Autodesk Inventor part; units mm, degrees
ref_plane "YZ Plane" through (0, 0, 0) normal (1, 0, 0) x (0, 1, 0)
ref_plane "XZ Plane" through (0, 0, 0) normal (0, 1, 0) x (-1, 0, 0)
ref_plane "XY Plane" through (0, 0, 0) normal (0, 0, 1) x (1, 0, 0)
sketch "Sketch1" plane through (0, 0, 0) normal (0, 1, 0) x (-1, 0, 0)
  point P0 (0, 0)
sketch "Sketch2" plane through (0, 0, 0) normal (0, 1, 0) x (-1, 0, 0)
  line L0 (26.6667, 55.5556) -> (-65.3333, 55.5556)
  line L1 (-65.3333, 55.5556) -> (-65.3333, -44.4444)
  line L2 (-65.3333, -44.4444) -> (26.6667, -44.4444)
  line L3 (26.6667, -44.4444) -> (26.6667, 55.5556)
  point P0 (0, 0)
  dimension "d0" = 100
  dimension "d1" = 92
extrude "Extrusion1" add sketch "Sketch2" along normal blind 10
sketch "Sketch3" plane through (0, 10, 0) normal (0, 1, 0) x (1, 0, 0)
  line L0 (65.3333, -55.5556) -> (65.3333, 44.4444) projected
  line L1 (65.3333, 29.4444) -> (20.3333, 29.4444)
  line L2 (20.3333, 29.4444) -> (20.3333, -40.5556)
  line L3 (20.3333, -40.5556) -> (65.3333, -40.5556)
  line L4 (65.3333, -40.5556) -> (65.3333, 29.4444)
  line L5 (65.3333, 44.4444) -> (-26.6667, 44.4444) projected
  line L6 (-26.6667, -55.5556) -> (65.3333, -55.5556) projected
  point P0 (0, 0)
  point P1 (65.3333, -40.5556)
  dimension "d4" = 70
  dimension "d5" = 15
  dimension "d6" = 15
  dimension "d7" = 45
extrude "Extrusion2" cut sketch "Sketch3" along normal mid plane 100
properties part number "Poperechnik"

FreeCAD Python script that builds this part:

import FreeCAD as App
import Part
import Sketcher

doc = App.newDocument("Part")
body = doc.addObject("PartDesign::Body", "Body")

# Sketch on XZ plane
sketch1 = body.newObject("Sketcher::SketchObject", "Sketch")
sketch1.AttachmentSupport = (doc.getObject("XZ_Plane"), [""])
sketch1.MapMode = "FlatFace"
sketch1.addGeometry([
    Part.LineSegment(App.Vector(-27, -44, 0), App.Vector(-27, 56, 0)),
    Part.LineSegment(App.Vector(-27, 56, 0), App.Vector(65, 56, 0)),
    Part.LineSegment(App.Vector(65, 56, 0), App.Vector(65, -44, 0)),
    Part.LineSegment(App.Vector(65, -44, 0), App.Vector(-27, -44, 0)),
], False)
sketch1.addConstraint([
    Sketcher.Constraint("Coincident", 0, 2, 1, 1),
    Sketcher.Constraint("Coincident", 1, 2, 2, 1),
    Sketcher.Constraint("Coincident", 2, 2, 3, 1),
    Sketcher.Constraint("Coincident", 3, 2, 0, 1),
    Sketcher.Constraint("Vertical", 0),
    Sketcher.Constraint("Horizontal", 1),
    Sketcher.Constraint("Vertical", 2),
    Sketcher.Constraint("Horizontal", 3),
    Sketcher.Constraint("DistanceX", 1, 1, 1, 2, 92.0),
    Sketcher.Constraint("DistanceY", 0, 1, 0, 2, 100.0),
    Sketcher.Constraint("DistanceX", 0, 2, -1, 1, 26.6667),
    Sketcher.Constraint("DistanceY", -1, 1, 0, 2, 55.5556),
])
pad1 = body.newObject("PartDesign::Pad", "Pad")
pad1.Profile = sketch1
pad1.Length = 10
pad1.Reversed = True

# Sketch on XZ plane
sketch2 = body.newObject("Sketcher::SketchObject", "Sketch001")
sketch2.AttachmentSupport = (doc.getObject("XZ_Plane"), [""])
sketch2.MapMode = "FlatFace"
sketch2.AttachmentOffset = App.Placement(App.Vector(0, 0, -10), App.Rotation())
sketch2.addGeometry([
    Part.LineSegment(App.Vector(20, 41, 0), App.Vector(65, 41, 0)),
    Part.LineSegment(App.Vector(65, 41, 0), App.Vector(65, -29, 0)),
    Part.LineSegment(App.Vector(65, -29, 0), App.Vector(20, -29, 0)),
    Part.LineSegment(App.Vector(20, -29, 0), App.Vector(20, 41, 0)),
], False)
sketch2.addConstraint([
    Sketcher.Constraint("Coincident", 0, 2, 1, 1),
    Sketcher.Constraint("Coincident", 1, 2, 2, 1),
    Sketcher.Constraint("Coincident", 2, 2, 3, 1),
    Sketcher.Constraint("Coincident", 3, 2, 0, 1),
    Sketcher.Constraint("Horizontal", 0),
    Sketcher.Constraint("Vertical", 1),
    Sketcher.Constraint("Horizontal", 2),
    Sketcher.Constraint("Vertical", 3),
    Sketcher.Constraint("DistanceX", 0, 1, 0, 2, 45.0),
    Sketcher.Constraint("DistanceY", 1, 2, 1, 1, 70.0),
    Sketcher.Constraint("DistanceX", -1, 1, 0, 2, 65.3333),
    Sketcher.Constraint("DistanceY", -1, 1, 0, 2, 40.5556),
])
pocket1 = body.newObject("PartDesign::Pocket", "Pocket")
pocket1.Profile = sketch2
pocket1.Length = 100
pocket1.Midplane = True

doc.recompute()
